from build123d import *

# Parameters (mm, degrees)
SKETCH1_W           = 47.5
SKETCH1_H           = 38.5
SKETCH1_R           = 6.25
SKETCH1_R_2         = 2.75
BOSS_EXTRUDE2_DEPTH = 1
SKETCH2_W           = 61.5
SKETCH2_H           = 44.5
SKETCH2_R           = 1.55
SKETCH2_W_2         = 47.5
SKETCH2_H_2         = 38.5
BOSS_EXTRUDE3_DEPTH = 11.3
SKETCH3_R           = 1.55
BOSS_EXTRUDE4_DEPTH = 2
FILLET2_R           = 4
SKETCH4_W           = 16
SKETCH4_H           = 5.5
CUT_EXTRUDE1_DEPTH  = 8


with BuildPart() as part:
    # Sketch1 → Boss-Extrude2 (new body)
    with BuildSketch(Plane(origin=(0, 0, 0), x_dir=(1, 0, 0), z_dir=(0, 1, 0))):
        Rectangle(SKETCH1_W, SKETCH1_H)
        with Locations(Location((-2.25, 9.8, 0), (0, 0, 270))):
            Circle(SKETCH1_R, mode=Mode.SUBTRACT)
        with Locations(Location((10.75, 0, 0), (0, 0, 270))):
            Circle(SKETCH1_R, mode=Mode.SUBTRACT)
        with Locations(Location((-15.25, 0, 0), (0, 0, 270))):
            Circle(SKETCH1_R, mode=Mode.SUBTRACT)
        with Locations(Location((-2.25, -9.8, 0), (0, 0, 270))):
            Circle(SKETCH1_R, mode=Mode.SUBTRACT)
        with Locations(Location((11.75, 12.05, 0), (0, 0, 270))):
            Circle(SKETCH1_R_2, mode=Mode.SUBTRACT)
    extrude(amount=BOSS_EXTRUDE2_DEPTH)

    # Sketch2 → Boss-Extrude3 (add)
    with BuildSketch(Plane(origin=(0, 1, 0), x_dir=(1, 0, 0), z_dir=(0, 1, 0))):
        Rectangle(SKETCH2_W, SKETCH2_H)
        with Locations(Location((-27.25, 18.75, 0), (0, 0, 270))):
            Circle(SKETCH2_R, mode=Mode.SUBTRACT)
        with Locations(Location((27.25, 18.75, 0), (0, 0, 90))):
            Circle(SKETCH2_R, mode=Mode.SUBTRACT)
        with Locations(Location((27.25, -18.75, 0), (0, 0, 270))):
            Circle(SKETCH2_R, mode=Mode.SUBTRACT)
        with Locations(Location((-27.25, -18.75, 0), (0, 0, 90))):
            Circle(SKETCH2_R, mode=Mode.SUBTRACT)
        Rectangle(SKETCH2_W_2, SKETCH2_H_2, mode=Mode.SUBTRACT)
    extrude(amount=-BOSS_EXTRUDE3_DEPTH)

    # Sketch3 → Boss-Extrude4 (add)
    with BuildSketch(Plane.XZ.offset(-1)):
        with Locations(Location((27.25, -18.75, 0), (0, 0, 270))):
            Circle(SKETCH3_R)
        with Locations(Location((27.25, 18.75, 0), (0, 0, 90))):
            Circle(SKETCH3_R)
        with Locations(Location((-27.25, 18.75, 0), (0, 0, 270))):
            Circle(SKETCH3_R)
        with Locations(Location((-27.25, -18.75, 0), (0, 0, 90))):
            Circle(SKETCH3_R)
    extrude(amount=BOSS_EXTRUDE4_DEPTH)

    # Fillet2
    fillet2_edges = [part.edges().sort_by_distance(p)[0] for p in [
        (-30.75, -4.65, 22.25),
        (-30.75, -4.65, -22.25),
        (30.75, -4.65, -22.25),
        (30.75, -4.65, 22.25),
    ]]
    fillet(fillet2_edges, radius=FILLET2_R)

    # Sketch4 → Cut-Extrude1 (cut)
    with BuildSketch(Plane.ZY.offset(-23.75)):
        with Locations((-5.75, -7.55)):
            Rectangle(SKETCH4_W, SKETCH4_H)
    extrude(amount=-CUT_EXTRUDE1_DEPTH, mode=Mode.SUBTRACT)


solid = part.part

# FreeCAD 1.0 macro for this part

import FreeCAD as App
import Part
import Sketcher
from FreeCAD import Vector
Q = App.Units.Quantity


def edges_at(feature, points):
    """Names of the edges that pass closest to the given points."""
    edges = feature.Shape.Edges
    near = lambda p: min(range(len(edges)), key=lambda i: edges[i].distToShape(Part.Vertex(*p))[0])
    return sorted({f"Edge{near(p) + 1}" for p in points})


def add_polygon(sketch, points):
    """Adds a closed chain of lines whose ends are joined by coincident constraints."""
    first, n = sketch.GeometryCount, len(points)
    for a, b in zip(points, points[1:] + points[:1]):
        sketch.addGeometry(Part.LineSegment(App.Vector(*a, 0), App.Vector(*b, 0)), False)
    for i in range(n):
        sketch.addConstraint(Sketcher.Constraint("Coincident", first + i, 2, first + (i + 1) % n, 1))

doc = App.newDocument("Part")
body = doc.addObject("PartDesign::Body", "Body")

sketch1 = doc.addObject("Sketcher::SketchObject", "Sketch")
body.addObject(sketch1)
sketch1.AttachmentSupport = (doc.XZ_Plane, [""])
sketch1.MapMode = "FlatFace"
add_polygon(sketch1, [(-23.75, -19.25), (-23.75, 19.25), (23.75, 19.25), (23.75, -19.25)])
sketch1.addGeometry(Part.Circle(Vector(-2.25, 9.8, 0), Vector(0, 0, 1), 6.25), False)
sketch1.addGeometry(Part.Circle(Vector(-15.25, 0, 0), Vector(0, 0, 1), 6.25), False)
sketch1.addGeometry(Part.Circle(Vector(10.75, 0, 0), Vector(0, 0, 1), 6.25), False)
sketch1.addGeometry(Part.Circle(Vector(-2.25, -9.8, 0), Vector(0, 0, 1), 6.25), False)
sketch1.addGeometry(Part.Circle(Vector(11.75, -12.05, 0), Vector(0, 0, 1), 2.75), False)
sketch1.addConstraint(Sketcher.Constraint("Vertical", 0))
sketch1.addConstraint(Sketcher.Constraint("Horizontal", 1))
sketch1.addConstraint(Sketcher.Constraint("Vertical", 2))
sketch1.addConstraint(Sketcher.Constraint("Horizontal", 3))
sketch1.addConstraint(Sketcher.Constraint("Equal", 4, 5))
sketch1.addConstraint(Sketcher.Constraint("Equal", 5, 6))
sketch1.addConstraint(Sketcher.Constraint("Equal", 6, 7))
sketch1.addConstraint(Sketcher.Constraint("Symmetric", 0, 2, 2, 2, -1, 1))
sketch1.addConstraint(Sketcher.Constraint("Symmetric", 4, 3, 7, 3, -1))
sketch1.addConstraint(Sketcher.Constraint("PointOnObject", 5, 3, -1))
sketch1.addConstraint(Sketcher.Constraint("PointOnObject", 6, 3, -1))
sketch1.addConstraint(Sketcher.Constraint("Diameter", 4, Q("12.5 mm")))
sketch1.addConstraint(Sketcher.Constraint("Diameter", 8, Q("5.5 mm")))
sketch1.addConstraint(Sketcher.Constraint("DistanceX", 1, 1, 1, 2, Q("47.5 mm")))
sketch1.addConstraint(Sketcher.Constraint("DistanceY", 0, 1, 0, 2, Q("38.5 mm")))
sketch1.addConstraint(Sketcher.Constraint("DistanceX", 5, 3, 4, 3, Q("13 mm")))
sketch1.addConstraint(Sketcher.Constraint("DistanceX", 4, 3, 6, 3, Q("13 mm")))
sketch1.addConstraint(Sketcher.Constraint("DistanceX", 6, 3, 8, 3, Q("1 mm")))
sketch1.addConstraint(Sketcher.Constraint("DistanceX", 6, 3, 1, 2, Q("13 mm")))
sketch1.addConstraint(Sketcher.Constraint("DistanceY", -1, 1, 4, 3, Q("9.8 mm")))
sketch1.addConstraint(Sketcher.Constraint("DistanceY", 8, 3, 0, 2, Q("31.3 mm")))
pad1 = doc.addObject("PartDesign::Pad", "Pad")
body.addObject(pad1)
pad1.Profile = sketch1
pad1.Length = 1
pad1.Reversed = True

sketch2 = doc.addObject("Sketcher::SketchObject", "Sketch001")
body.addObject(sketch2)
sketch2.AttachmentSupport = (doc.XZ_Plane, [""])
sketch2.MapMode = "FlatFace"
sketch2.AttachmentOffset = App.Placement(Vector(0, 0, -1), App.Rotation())
add_polygon(sketch2, [(-30.75, -22.25), (-30.75, 22.25), (30.75, 22.25), (30.75, -22.25)])
sketch2.addGeometry(Part.Circle(Vector(-27.25, 18.75, 0), Vector(0, 0, 1), 1.55), False)
sketch2.addGeometry(Part.Circle(Vector(27.25, 18.75, 0), Vector(0, 0, 1), 1.55), False)
add_polygon(sketch2, [(23.75, 19.25), (-23.75, 19.25), (-23.75, -19.25), (23.75, -19.25)])
sketch2.addGeometry(Part.Circle(Vector(-27.25, -18.75, 0), Vector(0, 0, 1), 1.55), False)
sketch2.addGeometry(Part.Circle(Vector(27.25, -18.75, 0), Vector(0, 0, 1), 1.55), False)
sketch2.addConstraint(Sketcher.Constraint("Vertical", 0))
sketch2.addConstraint(Sketcher.Constraint("Horizontal", 1))
sketch2.addConstraint(Sketcher.Constraint("Vertical", 2))
sketch2.addConstraint(Sketcher.Constraint("Horizontal", 3))
sketch2.addConstraint(Sketcher.Constraint("Horizontal", 6))
sketch2.addConstraint(Sketcher.Constraint("Vertical", 7))
sketch2.addConstraint(Sketcher.Constraint("Horizontal", 8))
sketch2.addConstraint(Sketcher.Constraint("Vertical", 9))
sketch2.addConstraint(Sketcher.Constraint("Equal", 4, 5))
sketch2.addConstraint(Sketcher.Constraint("Equal", 5, 10))
sketch2.addConstraint(Sketcher.Constraint("Equal", 10, 11))
sketch2.addConstraint(Sketcher.Constraint("Symmetric", 5, 3, 10, 3, -1, 1))
sketch2.addConstraint(Sketcher.Constraint("Symmetric", 4, 3, 11, 3, -1, 1))
sketch2.addConstraint(Sketcher.Constraint("Symmetric", 0, 2, 2, 2, -1, 1))
sketch2.addConstraint(Sketcher.Constraint("Symmetric", 6, 2, 8, 2, -1, 1))
sketch2.addConstraint(Sketcher.Constraint("Symmetric", 4, 3, 5, 3, -2))
sketch2.addConstraint(Sketcher.Constraint("Diameter", 4, Q("3.1 mm")))
sketch2.addConstraint(Sketcher.Constraint("DistanceX", 1, 1, 1, 2, Q("61.5 mm")))
sketch2.addConstraint(Sketcher.Constraint("DistanceX", 6, 2, 6, 1, Q("47.5 mm")))
sketch2.addConstraint(Sketcher.Constraint("DistanceY", 0, 1, 0, 2, Q("44.5 mm")))
sketch2.addConstraint(Sketcher.Constraint("DistanceY", 7, 2, 7, 1, Q("38.5 mm")))
sketch2.addConstraint(Sketcher.Constraint("DistanceY", 10, 3, 0, 2, Q("41 mm")))
sketch2.addConstraint(Sketcher.Constraint("DistanceX", 0, 2, 5, 3, Q("58 mm")))
pad2 = doc.addObject("PartDesign::Pad", "Pad001")
body.addObject(pad2)
pad2.Profile = sketch2
pad2.Length = 11.3

sketch3 = doc.addObject("Sketcher::SketchObject", "Sketch002")
body.addObject(sketch3)
sketch3.AttachmentSupport = (doc.XZ_Plane, [""])
sketch3.MapMode = "FlatFace"
sketch3.AttachmentOffset = App.Placement(Vector(0, 0, -1), App.Rotation())
sketch3.addGeometry(Part.Circle(Vector(27.25, -18.75, 0), Vector(0, 0, 1), 1.55), False)
sketch3.addGeometry(Part.Circle(Vector(27.25, 18.75, 0), Vector(0, 0, 1), 1.55), False)
sketch3.addGeometry(Part.Circle(Vector(-27.25, 18.75, 0), Vector(0, 0, 1), 1.55), False)
sketch3.addGeometry(Part.Circle(Vector(-27.25, -18.75, 0), Vector(0, 0, 1), 1.55), False)
sketch3.addConstraint(Sketcher.Constraint("Equal", 0, 1))
sketch3.addConstraint(Sketcher.Constraint("Equal", 1, 2))
sketch3.addConstraint(Sketcher.Constraint("Equal", 2, 3))
sketch3.addConstraint(Sketcher.Constraint("Symmetric", 0, 3, 2, 3, -1, 1))
sketch3.addConstraint(Sketcher.Constraint("Symmetric", 1, 3, 3, 3, -1, 1))
sketch3.addConstraint(Sketcher.Constraint("Symmetric", 1, 3, 2, 3, -2))
sketch3.addConstraint(Sketcher.Constraint("Diameter", 0, Q("3.1 mm")))
sketch3.addConstraint(Sketcher.Constraint("DistanceY", 0, 3, 1, 3, Q("37.5 mm")))
sketch3.addConstraint(Sketcher.Constraint("DistanceX", 2, 3, 1, 3, Q("54.5 mm")))
pad3 = doc.addObject("PartDesign::Pad", "Pad002")
body.addObject(pad3)
pad3.Profile = sketch3
pad3.Length = 2
doc.recompute()

fillet = doc.addObject("PartDesign::Fillet", "Fillet")
body.addObject(fillet)
fillet.Base = (pad3, edges_at(pad3, [
    (-30.75, -4.65, 22.25),
    (-30.75, -4.65, -22.25),
    (30.75, -4.65, -22.25),
    (30.75, -4.65, 22.25),
]))
fillet.Radius = 4

sketch4 = doc.addObject("Sketcher::SketchObject", "Sketch003")
body.addObject(sketch4)
sketch4.AttachmentSupport = (doc.YZ_Plane, [""])
sketch4.MapMode = "FlatFace"
sketch4.AttachmentOffset = App.Placement(Vector(0, 0, 23.75), App.Rotation())
add_polygon(sketch4, [(-4.8, -13.75), (-10.3, -13.75), (-10.3, 2.25), (-4.8, 2.25)])
sketch4.addConstraint(Sketcher.Constraint("Horizontal", 0))
sketch4.addConstraint(Sketcher.Constraint("Vertical", 1))
sketch4.addConstraint(Sketcher.Constraint("Horizontal", 2))
sketch4.addConstraint(Sketcher.Constraint("Vertical", 3))
sketch4.addConstraint(Sketcher.Constraint("DistanceY", 1, 1, 1, 2, Q("16 mm")))
sketch4.addConstraint(Sketcher.Constraint("DistanceX", 0, 2, 0, 1, Q("5.5 mm")))
sketch4.addConstraint(Sketcher.Constraint("DistanceX", 0, 2, -1, 1, Q("10.3 mm")))
sketch4.addConstraint(Sketcher.Constraint("DistanceY", 0, 2, -1, 1, Q("13.75 mm")))
pocket1 = doc.addObject("PartDesign::Pocket", "Pocket")
body.addObject(pocket1)
pocket1.Profile = sketch4
pocket1.Length = 8
pocket1.Reversed = True

doc.recompute()
